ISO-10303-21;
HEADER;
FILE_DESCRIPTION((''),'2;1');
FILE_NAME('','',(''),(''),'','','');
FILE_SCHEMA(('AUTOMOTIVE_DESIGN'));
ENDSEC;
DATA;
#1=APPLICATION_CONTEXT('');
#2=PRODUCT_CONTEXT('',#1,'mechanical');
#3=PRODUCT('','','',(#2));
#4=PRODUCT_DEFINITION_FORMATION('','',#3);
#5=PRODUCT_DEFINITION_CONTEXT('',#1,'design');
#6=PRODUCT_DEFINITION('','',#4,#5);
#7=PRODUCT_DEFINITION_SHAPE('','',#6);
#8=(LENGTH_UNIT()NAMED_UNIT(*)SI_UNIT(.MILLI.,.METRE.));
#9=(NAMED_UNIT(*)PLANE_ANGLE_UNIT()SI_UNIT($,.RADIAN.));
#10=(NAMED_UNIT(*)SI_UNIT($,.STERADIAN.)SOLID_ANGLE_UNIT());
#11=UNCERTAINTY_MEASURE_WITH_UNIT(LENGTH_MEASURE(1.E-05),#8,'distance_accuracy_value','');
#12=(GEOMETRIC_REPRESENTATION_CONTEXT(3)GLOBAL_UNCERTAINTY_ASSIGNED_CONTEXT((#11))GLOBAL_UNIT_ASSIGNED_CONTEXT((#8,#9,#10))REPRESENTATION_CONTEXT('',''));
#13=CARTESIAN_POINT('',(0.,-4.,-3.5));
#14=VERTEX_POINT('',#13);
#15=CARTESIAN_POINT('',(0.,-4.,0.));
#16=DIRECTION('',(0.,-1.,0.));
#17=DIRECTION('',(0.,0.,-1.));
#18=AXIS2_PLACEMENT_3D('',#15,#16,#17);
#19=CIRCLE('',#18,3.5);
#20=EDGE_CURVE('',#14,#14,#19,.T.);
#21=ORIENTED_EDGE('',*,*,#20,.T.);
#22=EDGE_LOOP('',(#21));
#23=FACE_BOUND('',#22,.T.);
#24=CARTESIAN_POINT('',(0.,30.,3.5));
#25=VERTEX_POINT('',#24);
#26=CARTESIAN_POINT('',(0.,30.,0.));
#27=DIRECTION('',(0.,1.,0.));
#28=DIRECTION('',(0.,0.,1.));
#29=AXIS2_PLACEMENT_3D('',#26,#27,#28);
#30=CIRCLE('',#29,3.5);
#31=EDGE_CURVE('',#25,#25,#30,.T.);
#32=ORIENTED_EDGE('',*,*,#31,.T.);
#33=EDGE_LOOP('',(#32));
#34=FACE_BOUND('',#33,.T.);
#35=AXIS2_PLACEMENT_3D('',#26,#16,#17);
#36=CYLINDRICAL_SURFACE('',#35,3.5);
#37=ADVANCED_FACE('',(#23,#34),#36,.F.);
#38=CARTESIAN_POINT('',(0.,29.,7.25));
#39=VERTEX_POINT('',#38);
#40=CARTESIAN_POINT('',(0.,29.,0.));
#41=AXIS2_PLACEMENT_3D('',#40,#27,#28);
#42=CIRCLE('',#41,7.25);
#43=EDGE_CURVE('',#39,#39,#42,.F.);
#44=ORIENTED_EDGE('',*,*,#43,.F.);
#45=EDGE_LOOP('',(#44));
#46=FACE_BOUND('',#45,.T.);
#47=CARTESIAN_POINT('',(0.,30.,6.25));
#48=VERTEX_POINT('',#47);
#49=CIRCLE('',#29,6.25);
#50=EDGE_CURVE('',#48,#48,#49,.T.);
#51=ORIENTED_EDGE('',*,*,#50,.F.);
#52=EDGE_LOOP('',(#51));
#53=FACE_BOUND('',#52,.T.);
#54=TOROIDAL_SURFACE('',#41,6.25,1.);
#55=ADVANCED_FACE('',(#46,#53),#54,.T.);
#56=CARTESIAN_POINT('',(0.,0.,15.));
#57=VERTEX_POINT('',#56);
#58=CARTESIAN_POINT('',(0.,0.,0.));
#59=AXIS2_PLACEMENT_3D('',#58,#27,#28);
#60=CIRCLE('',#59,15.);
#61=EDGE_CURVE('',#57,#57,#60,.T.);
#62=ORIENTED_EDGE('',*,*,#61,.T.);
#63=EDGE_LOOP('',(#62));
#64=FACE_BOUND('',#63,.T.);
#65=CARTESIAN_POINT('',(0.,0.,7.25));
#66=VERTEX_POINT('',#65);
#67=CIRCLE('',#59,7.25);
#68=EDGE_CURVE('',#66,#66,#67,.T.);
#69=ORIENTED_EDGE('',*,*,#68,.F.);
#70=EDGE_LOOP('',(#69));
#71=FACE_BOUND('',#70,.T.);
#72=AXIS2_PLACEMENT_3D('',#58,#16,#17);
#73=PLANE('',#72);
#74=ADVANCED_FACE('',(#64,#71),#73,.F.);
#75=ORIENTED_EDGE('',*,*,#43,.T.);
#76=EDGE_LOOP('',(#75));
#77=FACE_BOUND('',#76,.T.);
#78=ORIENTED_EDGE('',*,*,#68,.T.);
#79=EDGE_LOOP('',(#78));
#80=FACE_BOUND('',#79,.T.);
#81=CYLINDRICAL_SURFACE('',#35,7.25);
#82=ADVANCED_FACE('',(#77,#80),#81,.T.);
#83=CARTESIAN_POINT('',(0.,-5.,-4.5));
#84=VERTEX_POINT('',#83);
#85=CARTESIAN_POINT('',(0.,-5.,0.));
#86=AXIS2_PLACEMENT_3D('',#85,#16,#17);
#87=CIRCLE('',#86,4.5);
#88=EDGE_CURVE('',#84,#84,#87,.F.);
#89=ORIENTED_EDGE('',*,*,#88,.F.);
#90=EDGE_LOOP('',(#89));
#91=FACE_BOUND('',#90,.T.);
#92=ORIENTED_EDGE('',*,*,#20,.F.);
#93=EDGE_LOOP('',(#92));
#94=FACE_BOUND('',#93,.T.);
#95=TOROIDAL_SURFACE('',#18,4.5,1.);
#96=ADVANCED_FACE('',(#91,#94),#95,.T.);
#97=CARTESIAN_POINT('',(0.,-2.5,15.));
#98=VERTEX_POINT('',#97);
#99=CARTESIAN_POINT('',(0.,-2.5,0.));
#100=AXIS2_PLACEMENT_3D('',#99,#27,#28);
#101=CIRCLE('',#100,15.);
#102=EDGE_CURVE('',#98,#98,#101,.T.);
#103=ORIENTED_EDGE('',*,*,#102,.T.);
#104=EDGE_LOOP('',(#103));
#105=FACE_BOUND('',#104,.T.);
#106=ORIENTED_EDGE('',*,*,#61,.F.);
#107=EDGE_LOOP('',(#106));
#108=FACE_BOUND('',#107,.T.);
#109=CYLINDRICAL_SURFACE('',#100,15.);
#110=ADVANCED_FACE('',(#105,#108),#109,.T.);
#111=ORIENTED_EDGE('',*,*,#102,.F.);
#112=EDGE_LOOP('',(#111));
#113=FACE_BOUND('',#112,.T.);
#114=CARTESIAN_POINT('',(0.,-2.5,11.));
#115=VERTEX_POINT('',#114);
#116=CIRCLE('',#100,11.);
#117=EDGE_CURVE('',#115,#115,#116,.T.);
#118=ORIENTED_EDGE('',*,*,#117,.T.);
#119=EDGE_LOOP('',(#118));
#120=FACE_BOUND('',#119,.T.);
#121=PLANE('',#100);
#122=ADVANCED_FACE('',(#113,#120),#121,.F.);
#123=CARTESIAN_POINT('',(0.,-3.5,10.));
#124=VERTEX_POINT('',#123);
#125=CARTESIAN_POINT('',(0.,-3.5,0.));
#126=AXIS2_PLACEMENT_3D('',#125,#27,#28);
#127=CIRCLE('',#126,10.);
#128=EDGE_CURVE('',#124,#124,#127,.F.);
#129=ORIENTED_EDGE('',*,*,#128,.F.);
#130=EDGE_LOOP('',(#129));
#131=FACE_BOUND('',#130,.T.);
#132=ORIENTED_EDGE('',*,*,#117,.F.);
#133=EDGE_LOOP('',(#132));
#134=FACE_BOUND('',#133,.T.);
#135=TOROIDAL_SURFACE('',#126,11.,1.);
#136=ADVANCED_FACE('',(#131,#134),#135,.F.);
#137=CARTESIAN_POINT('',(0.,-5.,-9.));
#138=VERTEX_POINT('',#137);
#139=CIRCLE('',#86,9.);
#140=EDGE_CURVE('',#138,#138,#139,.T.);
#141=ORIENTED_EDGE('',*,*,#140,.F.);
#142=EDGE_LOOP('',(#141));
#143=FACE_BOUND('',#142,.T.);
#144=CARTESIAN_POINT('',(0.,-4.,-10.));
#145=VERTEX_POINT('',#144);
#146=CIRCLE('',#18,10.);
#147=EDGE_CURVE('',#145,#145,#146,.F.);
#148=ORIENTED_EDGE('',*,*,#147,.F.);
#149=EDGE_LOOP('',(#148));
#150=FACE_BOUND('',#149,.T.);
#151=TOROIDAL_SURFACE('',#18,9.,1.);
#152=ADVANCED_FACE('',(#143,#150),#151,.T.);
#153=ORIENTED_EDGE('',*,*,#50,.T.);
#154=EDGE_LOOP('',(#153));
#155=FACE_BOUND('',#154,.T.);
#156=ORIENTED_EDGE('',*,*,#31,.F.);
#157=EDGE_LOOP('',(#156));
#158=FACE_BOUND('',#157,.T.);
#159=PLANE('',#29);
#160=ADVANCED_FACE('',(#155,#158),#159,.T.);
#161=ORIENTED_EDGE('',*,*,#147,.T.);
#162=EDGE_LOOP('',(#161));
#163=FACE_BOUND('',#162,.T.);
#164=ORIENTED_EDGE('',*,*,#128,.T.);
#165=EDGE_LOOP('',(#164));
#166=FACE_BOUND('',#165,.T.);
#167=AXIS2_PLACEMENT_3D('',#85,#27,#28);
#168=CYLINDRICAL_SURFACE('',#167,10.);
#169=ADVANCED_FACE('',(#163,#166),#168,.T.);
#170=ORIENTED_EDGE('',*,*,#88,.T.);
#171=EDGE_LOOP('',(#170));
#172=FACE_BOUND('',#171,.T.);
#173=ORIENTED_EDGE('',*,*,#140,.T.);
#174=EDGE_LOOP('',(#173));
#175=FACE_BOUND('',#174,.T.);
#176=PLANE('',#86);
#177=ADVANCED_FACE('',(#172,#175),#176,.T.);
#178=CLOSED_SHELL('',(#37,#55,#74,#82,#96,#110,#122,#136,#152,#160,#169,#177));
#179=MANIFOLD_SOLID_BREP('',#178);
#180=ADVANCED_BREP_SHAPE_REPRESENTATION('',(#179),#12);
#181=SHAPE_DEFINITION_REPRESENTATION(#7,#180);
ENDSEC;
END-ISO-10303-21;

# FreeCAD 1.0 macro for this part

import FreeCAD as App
import Part
import Sketcher
from FreeCAD import Vector
Q = App.Units.Quantity


def edges_at(feature, points):
    """Names of the edges that pass closest to the given points."""
    edges = feature.Shape.Edges
    near = lambda p: min(range(len(edges)), key=lambda i: edges[i].distToShape(Part.Vertex(*p))[0])
    return sorted({f"Edge{near(p) + 1}" for p in points})

doc = App.newDocument("Part")
body = doc.addObject("PartDesign::Body", "Body")

sketch1 = body.newObject("Sketcher::SketchObject", "Sketch")
sketch1.AttachmentSupport = (doc.getObject("XZ_Plane"), [""])
sketch1.MapMode = "FlatFace"
sketch1.addGeometry(Part.Circle(Vector(0, 0, 0), Vector(0, 0, 1), 7.2), False)
sketch1.addGeometry(Part.Circle(Vector(0, 0, 0), Vector(0, 0, 1), 3.5), False)
sketch1.addConstraint(Sketcher.Constraint("Coincident", 0, 3, -1, 1))
sketch1.addConstraint(Sketcher.Constraint("Coincident", 1, 3, -1, 1))
sketch1.addConstraint(Sketcher.Constraint("Diameter", 1, Q("7 mm")))
sketch1.addConstraint(Sketcher.Constraint("Diameter", 0, Q("14.5 mm")))
pad1 = body.newObject("PartDesign::Pad", "Pad")
pad1.Profile = sketch1
pad1.Length = 30
pad1.Reversed = True

sketch2 = body.newObject("Sketcher::SketchObject", "Sketch001")
sketch2.AttachmentSupport = (doc.getObject("XZ_Plane"), [""])
sketch2.MapMode = "FlatFace"
sketch2.AttachmentOffset = App.Placement(Vector(0, 0, 5), App.Rotation())
sketch2.addGeometry(Part.Circle(Vector(0, 0, 0), Vector(0, 0, 1), 10), False)
sketch2.addGeometry(Part.Circle(Vector(0, 0, 0), Vector(0, 0, 1), 3.5), False)
sketch2.addConstraint(Sketcher.Constraint("Coincident", 0, 3, -1, 1))
sketch2.addConstraint(Sketcher.Constraint("Coincident", 1, 3, -1, 1))
sketch2.addConstraint(Sketcher.Constraint("Diameter", 0, Q("20 mm")))
sketch2.addConstraint(Sketcher.Constraint("Diameter", 1, Q("7 mm")))
pad2 = body.newObject("PartDesign::Pad", "Pad001")
pad2.Profile = sketch2
pad2.Length = 5
pad2.Reversed = True

sketch3 = body.newObject("Sketcher::SketchObject", "Sketch002")
sketch3.AttachmentSupport = (doc.getObject("XZ_Plane"), [""])
sketch3.MapMode = "FlatFace"
sketch3.AttachmentOffset = App.Placement(Vector(0, 0, 2.5), App.Rotation())
sketch3.addGeometry(Part.Circle(Vector(0, 0, 0), Vector(0, 0, 1), 15), False)
sketch3.addGeometry(Part.Circle(Vector(0, 0, 0), Vector(0, 0, 1), 3.5), False)
sketch3.addConstraint(Sketcher.Constraint("Coincident", 0, 3, -1, 1))
sketch3.addConstraint(Sketcher.Constraint("Coincident", 1, 3, -1, 1))
sketch3.addConstraint(Sketcher.Constraint("Diameter", 0, Q("30 mm")))
sketch3.addConstraint(Sketcher.Constraint("Diameter", 1, Q("7 mm")))
pad3 = body.newObject("PartDesign::Pad", "Pad002")
pad3.Profile = sketch3
pad3.Length = 2.5
pad3.Reversed = True
doc.recompute()

fillet = body.newObject("PartDesign::Fillet", "Fillet")
fillet.Base = (pad3, edges_at(pad3, [
    (0, -5, 10),
    (0, -5, 3.5),
    (0, -2.5, 10),
    (0, 30, -7.25),
]))
fillet.Radius = 1

doc.recompute()
